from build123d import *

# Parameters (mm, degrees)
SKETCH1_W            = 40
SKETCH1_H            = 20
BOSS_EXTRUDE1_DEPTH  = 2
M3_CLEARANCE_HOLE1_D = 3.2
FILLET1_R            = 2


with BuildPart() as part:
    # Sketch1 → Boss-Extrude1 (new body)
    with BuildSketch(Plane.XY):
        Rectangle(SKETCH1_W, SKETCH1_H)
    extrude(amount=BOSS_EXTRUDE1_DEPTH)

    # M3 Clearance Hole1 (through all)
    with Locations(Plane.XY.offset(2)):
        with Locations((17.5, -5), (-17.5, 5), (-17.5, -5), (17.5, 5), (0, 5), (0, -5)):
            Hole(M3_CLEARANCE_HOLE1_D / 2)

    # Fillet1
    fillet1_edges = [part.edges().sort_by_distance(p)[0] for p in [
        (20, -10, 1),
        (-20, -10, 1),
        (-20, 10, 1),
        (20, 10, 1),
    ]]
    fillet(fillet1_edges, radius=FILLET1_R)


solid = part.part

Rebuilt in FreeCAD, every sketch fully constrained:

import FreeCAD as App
import Part
import Sketcher
from FreeCAD import Vector
Q = App.Units.Quantity


def edges_at(feature, points):
    """Names of the edges that pass closest to the given points."""
    edges = feature.Shape.Edges
    near = lambda p: min(range(len(edges)), key=lambda i: edges[i].distToShape(Part.Vertex(*p))[0])
    return sorted({f"Edge{near(p) + 1}" for p in points})

doc = App.newDocument("Part")
body = doc.addObject("PartDesign::Body", "Body")

# Sketch on XY plane
sketch1 = body.newObject("Sketcher::SketchObject", "Sketch")
sketch1.AttachmentSupport = (doc.getObject("XY_Plane"), [""])
sketch1.MapMode = "FlatFace"
sketch1.addGeometry([
    Part.LineSegment(Vector(-20, 10, 0), Vector(-20, -10, 0)),
    Part.LineSegment(Vector(-20, -10, 0), Vector(20, -10, 0)),
    Part.LineSegment(Vector(20, -10, 0), Vector(20, 10, 0)),
    Part.LineSegment(Vector(20, 10, 0), Vector(-20, 10, 0)),
], False)
sketch1.addConstraint([
    Sketcher.Constraint("Coincident", 0, 2, 1, 1),
    Sketcher.Constraint("Coincident", 1, 2, 2, 1),
    Sketcher.Constraint("Coincident", 2, 2, 3, 1),
    Sketcher.Constraint("Coincident", 3, 2, 0, 1),
    Sketcher.Constraint("Vertical", 0),
    Sketcher.Constraint("Horizontal", 1),
    Sketcher.Constraint("Vertical", 2),
    Sketcher.Constraint("Horizontal", 3),
    Sketcher.Constraint("Symmetric", 0, 2, 2, 2, -1, 1),
    Sketcher.Constraint("DistanceX", 1, 1, 1, 2, Q("40 mm")),
    Sketcher.Constraint("DistanceY", 0, 2, 0, 1, Q("20 mm")),
])
pad1 = body.newObject("PartDesign::Pad", "Pad")
pad1.Profile = sketch1
pad1.Length = 2

# Sketch on XY plane
sketch2 = body.newObject("Sketcher::SketchObject", "Sketch001")
sketch2.AttachmentSupport = (doc.getObject("XY_Plane"), [""])
sketch2.MapMode = "FlatFace"
sketch2.AttachmentOffset = App.Placement(Vector(0, 0, 2), App.Rotation())
sketch2.addGeometry([
    Part.Circle(Vector(17.5, -5, 0), Vector(0, 0, 1), 1.6),  # 0
    Part.Circle(Vector(-17.5, 5, 0), Vector(0, 0, 1), 1.6),  # 1
    Part.Circle(Vector(-17.5, -5, 0), Vector(0, 0, 1), 1.6),  # 2
    Part.Circle(Vector(17.5, 5, 0), Vector(0, 0, 1), 1.6),  # 3
    Part.Circle(Vector(0, 5, 0), Vector(0, 0, 1), 1.6),  # 4
    Part.Circle(Vector(0, -5, 0), Vector(0, 0, 1), 1.6),  # 5
], False)
sketch2.addConstraint([
    Sketcher.Constraint("Equal", 0, 1),
    Sketcher.Constraint("Equal", 1, 2),
    Sketcher.Constraint("Equal", 2, 3),
    Sketcher.Constraint("Equal", 3, 4),
    Sketcher.Constraint("Equal", 4, 5),
    Sketcher.Constraint("Symmetric", 0, 3, 1, 3, -1, 1),
    Sketcher.Constraint("Symmetric", 2, 3, 3, 3, -1, 1),
    Sketcher.Constraint("Symmetric", 4, 3, 5, 3, -1, 1),
    Sketcher.Constraint("Symmetric", 0, 3, 2, 3, -2),
    Sketcher.Constraint("PointOnObject", 4, 3, -2),
    Sketcher.Constraint("Horizontal", 3, 3, 4, 3),
    Sketcher.Constraint("Diameter", 0, Q("3.2 mm")),
    Sketcher.Constraint("DistanceY", 0, 3, -1, 1, Q("5 mm")),
    Sketcher.Constraint("DistanceX", 1, 3, 0, 3, Q("35 mm")),
])
doc.recompute()
hole = body.newObject("PartDesign::Hole", "Hole")
hole.Profile = sketch2
hole.ThreadType = "None"
hole.Diameter = 3.2
hole.DepthType = "ThroughAll"
doc.recompute()

fillet = body.newObject("PartDesign::Fillet", "Fillet")
fillet.Base = (hole, edges_at(hole, [
    (20, -10, 1),
    (-20, -10, 1),
    (-20, 10, 1),
    (20, 10, 1),
]))
fillet.Radius = 2

doc.recompute()
